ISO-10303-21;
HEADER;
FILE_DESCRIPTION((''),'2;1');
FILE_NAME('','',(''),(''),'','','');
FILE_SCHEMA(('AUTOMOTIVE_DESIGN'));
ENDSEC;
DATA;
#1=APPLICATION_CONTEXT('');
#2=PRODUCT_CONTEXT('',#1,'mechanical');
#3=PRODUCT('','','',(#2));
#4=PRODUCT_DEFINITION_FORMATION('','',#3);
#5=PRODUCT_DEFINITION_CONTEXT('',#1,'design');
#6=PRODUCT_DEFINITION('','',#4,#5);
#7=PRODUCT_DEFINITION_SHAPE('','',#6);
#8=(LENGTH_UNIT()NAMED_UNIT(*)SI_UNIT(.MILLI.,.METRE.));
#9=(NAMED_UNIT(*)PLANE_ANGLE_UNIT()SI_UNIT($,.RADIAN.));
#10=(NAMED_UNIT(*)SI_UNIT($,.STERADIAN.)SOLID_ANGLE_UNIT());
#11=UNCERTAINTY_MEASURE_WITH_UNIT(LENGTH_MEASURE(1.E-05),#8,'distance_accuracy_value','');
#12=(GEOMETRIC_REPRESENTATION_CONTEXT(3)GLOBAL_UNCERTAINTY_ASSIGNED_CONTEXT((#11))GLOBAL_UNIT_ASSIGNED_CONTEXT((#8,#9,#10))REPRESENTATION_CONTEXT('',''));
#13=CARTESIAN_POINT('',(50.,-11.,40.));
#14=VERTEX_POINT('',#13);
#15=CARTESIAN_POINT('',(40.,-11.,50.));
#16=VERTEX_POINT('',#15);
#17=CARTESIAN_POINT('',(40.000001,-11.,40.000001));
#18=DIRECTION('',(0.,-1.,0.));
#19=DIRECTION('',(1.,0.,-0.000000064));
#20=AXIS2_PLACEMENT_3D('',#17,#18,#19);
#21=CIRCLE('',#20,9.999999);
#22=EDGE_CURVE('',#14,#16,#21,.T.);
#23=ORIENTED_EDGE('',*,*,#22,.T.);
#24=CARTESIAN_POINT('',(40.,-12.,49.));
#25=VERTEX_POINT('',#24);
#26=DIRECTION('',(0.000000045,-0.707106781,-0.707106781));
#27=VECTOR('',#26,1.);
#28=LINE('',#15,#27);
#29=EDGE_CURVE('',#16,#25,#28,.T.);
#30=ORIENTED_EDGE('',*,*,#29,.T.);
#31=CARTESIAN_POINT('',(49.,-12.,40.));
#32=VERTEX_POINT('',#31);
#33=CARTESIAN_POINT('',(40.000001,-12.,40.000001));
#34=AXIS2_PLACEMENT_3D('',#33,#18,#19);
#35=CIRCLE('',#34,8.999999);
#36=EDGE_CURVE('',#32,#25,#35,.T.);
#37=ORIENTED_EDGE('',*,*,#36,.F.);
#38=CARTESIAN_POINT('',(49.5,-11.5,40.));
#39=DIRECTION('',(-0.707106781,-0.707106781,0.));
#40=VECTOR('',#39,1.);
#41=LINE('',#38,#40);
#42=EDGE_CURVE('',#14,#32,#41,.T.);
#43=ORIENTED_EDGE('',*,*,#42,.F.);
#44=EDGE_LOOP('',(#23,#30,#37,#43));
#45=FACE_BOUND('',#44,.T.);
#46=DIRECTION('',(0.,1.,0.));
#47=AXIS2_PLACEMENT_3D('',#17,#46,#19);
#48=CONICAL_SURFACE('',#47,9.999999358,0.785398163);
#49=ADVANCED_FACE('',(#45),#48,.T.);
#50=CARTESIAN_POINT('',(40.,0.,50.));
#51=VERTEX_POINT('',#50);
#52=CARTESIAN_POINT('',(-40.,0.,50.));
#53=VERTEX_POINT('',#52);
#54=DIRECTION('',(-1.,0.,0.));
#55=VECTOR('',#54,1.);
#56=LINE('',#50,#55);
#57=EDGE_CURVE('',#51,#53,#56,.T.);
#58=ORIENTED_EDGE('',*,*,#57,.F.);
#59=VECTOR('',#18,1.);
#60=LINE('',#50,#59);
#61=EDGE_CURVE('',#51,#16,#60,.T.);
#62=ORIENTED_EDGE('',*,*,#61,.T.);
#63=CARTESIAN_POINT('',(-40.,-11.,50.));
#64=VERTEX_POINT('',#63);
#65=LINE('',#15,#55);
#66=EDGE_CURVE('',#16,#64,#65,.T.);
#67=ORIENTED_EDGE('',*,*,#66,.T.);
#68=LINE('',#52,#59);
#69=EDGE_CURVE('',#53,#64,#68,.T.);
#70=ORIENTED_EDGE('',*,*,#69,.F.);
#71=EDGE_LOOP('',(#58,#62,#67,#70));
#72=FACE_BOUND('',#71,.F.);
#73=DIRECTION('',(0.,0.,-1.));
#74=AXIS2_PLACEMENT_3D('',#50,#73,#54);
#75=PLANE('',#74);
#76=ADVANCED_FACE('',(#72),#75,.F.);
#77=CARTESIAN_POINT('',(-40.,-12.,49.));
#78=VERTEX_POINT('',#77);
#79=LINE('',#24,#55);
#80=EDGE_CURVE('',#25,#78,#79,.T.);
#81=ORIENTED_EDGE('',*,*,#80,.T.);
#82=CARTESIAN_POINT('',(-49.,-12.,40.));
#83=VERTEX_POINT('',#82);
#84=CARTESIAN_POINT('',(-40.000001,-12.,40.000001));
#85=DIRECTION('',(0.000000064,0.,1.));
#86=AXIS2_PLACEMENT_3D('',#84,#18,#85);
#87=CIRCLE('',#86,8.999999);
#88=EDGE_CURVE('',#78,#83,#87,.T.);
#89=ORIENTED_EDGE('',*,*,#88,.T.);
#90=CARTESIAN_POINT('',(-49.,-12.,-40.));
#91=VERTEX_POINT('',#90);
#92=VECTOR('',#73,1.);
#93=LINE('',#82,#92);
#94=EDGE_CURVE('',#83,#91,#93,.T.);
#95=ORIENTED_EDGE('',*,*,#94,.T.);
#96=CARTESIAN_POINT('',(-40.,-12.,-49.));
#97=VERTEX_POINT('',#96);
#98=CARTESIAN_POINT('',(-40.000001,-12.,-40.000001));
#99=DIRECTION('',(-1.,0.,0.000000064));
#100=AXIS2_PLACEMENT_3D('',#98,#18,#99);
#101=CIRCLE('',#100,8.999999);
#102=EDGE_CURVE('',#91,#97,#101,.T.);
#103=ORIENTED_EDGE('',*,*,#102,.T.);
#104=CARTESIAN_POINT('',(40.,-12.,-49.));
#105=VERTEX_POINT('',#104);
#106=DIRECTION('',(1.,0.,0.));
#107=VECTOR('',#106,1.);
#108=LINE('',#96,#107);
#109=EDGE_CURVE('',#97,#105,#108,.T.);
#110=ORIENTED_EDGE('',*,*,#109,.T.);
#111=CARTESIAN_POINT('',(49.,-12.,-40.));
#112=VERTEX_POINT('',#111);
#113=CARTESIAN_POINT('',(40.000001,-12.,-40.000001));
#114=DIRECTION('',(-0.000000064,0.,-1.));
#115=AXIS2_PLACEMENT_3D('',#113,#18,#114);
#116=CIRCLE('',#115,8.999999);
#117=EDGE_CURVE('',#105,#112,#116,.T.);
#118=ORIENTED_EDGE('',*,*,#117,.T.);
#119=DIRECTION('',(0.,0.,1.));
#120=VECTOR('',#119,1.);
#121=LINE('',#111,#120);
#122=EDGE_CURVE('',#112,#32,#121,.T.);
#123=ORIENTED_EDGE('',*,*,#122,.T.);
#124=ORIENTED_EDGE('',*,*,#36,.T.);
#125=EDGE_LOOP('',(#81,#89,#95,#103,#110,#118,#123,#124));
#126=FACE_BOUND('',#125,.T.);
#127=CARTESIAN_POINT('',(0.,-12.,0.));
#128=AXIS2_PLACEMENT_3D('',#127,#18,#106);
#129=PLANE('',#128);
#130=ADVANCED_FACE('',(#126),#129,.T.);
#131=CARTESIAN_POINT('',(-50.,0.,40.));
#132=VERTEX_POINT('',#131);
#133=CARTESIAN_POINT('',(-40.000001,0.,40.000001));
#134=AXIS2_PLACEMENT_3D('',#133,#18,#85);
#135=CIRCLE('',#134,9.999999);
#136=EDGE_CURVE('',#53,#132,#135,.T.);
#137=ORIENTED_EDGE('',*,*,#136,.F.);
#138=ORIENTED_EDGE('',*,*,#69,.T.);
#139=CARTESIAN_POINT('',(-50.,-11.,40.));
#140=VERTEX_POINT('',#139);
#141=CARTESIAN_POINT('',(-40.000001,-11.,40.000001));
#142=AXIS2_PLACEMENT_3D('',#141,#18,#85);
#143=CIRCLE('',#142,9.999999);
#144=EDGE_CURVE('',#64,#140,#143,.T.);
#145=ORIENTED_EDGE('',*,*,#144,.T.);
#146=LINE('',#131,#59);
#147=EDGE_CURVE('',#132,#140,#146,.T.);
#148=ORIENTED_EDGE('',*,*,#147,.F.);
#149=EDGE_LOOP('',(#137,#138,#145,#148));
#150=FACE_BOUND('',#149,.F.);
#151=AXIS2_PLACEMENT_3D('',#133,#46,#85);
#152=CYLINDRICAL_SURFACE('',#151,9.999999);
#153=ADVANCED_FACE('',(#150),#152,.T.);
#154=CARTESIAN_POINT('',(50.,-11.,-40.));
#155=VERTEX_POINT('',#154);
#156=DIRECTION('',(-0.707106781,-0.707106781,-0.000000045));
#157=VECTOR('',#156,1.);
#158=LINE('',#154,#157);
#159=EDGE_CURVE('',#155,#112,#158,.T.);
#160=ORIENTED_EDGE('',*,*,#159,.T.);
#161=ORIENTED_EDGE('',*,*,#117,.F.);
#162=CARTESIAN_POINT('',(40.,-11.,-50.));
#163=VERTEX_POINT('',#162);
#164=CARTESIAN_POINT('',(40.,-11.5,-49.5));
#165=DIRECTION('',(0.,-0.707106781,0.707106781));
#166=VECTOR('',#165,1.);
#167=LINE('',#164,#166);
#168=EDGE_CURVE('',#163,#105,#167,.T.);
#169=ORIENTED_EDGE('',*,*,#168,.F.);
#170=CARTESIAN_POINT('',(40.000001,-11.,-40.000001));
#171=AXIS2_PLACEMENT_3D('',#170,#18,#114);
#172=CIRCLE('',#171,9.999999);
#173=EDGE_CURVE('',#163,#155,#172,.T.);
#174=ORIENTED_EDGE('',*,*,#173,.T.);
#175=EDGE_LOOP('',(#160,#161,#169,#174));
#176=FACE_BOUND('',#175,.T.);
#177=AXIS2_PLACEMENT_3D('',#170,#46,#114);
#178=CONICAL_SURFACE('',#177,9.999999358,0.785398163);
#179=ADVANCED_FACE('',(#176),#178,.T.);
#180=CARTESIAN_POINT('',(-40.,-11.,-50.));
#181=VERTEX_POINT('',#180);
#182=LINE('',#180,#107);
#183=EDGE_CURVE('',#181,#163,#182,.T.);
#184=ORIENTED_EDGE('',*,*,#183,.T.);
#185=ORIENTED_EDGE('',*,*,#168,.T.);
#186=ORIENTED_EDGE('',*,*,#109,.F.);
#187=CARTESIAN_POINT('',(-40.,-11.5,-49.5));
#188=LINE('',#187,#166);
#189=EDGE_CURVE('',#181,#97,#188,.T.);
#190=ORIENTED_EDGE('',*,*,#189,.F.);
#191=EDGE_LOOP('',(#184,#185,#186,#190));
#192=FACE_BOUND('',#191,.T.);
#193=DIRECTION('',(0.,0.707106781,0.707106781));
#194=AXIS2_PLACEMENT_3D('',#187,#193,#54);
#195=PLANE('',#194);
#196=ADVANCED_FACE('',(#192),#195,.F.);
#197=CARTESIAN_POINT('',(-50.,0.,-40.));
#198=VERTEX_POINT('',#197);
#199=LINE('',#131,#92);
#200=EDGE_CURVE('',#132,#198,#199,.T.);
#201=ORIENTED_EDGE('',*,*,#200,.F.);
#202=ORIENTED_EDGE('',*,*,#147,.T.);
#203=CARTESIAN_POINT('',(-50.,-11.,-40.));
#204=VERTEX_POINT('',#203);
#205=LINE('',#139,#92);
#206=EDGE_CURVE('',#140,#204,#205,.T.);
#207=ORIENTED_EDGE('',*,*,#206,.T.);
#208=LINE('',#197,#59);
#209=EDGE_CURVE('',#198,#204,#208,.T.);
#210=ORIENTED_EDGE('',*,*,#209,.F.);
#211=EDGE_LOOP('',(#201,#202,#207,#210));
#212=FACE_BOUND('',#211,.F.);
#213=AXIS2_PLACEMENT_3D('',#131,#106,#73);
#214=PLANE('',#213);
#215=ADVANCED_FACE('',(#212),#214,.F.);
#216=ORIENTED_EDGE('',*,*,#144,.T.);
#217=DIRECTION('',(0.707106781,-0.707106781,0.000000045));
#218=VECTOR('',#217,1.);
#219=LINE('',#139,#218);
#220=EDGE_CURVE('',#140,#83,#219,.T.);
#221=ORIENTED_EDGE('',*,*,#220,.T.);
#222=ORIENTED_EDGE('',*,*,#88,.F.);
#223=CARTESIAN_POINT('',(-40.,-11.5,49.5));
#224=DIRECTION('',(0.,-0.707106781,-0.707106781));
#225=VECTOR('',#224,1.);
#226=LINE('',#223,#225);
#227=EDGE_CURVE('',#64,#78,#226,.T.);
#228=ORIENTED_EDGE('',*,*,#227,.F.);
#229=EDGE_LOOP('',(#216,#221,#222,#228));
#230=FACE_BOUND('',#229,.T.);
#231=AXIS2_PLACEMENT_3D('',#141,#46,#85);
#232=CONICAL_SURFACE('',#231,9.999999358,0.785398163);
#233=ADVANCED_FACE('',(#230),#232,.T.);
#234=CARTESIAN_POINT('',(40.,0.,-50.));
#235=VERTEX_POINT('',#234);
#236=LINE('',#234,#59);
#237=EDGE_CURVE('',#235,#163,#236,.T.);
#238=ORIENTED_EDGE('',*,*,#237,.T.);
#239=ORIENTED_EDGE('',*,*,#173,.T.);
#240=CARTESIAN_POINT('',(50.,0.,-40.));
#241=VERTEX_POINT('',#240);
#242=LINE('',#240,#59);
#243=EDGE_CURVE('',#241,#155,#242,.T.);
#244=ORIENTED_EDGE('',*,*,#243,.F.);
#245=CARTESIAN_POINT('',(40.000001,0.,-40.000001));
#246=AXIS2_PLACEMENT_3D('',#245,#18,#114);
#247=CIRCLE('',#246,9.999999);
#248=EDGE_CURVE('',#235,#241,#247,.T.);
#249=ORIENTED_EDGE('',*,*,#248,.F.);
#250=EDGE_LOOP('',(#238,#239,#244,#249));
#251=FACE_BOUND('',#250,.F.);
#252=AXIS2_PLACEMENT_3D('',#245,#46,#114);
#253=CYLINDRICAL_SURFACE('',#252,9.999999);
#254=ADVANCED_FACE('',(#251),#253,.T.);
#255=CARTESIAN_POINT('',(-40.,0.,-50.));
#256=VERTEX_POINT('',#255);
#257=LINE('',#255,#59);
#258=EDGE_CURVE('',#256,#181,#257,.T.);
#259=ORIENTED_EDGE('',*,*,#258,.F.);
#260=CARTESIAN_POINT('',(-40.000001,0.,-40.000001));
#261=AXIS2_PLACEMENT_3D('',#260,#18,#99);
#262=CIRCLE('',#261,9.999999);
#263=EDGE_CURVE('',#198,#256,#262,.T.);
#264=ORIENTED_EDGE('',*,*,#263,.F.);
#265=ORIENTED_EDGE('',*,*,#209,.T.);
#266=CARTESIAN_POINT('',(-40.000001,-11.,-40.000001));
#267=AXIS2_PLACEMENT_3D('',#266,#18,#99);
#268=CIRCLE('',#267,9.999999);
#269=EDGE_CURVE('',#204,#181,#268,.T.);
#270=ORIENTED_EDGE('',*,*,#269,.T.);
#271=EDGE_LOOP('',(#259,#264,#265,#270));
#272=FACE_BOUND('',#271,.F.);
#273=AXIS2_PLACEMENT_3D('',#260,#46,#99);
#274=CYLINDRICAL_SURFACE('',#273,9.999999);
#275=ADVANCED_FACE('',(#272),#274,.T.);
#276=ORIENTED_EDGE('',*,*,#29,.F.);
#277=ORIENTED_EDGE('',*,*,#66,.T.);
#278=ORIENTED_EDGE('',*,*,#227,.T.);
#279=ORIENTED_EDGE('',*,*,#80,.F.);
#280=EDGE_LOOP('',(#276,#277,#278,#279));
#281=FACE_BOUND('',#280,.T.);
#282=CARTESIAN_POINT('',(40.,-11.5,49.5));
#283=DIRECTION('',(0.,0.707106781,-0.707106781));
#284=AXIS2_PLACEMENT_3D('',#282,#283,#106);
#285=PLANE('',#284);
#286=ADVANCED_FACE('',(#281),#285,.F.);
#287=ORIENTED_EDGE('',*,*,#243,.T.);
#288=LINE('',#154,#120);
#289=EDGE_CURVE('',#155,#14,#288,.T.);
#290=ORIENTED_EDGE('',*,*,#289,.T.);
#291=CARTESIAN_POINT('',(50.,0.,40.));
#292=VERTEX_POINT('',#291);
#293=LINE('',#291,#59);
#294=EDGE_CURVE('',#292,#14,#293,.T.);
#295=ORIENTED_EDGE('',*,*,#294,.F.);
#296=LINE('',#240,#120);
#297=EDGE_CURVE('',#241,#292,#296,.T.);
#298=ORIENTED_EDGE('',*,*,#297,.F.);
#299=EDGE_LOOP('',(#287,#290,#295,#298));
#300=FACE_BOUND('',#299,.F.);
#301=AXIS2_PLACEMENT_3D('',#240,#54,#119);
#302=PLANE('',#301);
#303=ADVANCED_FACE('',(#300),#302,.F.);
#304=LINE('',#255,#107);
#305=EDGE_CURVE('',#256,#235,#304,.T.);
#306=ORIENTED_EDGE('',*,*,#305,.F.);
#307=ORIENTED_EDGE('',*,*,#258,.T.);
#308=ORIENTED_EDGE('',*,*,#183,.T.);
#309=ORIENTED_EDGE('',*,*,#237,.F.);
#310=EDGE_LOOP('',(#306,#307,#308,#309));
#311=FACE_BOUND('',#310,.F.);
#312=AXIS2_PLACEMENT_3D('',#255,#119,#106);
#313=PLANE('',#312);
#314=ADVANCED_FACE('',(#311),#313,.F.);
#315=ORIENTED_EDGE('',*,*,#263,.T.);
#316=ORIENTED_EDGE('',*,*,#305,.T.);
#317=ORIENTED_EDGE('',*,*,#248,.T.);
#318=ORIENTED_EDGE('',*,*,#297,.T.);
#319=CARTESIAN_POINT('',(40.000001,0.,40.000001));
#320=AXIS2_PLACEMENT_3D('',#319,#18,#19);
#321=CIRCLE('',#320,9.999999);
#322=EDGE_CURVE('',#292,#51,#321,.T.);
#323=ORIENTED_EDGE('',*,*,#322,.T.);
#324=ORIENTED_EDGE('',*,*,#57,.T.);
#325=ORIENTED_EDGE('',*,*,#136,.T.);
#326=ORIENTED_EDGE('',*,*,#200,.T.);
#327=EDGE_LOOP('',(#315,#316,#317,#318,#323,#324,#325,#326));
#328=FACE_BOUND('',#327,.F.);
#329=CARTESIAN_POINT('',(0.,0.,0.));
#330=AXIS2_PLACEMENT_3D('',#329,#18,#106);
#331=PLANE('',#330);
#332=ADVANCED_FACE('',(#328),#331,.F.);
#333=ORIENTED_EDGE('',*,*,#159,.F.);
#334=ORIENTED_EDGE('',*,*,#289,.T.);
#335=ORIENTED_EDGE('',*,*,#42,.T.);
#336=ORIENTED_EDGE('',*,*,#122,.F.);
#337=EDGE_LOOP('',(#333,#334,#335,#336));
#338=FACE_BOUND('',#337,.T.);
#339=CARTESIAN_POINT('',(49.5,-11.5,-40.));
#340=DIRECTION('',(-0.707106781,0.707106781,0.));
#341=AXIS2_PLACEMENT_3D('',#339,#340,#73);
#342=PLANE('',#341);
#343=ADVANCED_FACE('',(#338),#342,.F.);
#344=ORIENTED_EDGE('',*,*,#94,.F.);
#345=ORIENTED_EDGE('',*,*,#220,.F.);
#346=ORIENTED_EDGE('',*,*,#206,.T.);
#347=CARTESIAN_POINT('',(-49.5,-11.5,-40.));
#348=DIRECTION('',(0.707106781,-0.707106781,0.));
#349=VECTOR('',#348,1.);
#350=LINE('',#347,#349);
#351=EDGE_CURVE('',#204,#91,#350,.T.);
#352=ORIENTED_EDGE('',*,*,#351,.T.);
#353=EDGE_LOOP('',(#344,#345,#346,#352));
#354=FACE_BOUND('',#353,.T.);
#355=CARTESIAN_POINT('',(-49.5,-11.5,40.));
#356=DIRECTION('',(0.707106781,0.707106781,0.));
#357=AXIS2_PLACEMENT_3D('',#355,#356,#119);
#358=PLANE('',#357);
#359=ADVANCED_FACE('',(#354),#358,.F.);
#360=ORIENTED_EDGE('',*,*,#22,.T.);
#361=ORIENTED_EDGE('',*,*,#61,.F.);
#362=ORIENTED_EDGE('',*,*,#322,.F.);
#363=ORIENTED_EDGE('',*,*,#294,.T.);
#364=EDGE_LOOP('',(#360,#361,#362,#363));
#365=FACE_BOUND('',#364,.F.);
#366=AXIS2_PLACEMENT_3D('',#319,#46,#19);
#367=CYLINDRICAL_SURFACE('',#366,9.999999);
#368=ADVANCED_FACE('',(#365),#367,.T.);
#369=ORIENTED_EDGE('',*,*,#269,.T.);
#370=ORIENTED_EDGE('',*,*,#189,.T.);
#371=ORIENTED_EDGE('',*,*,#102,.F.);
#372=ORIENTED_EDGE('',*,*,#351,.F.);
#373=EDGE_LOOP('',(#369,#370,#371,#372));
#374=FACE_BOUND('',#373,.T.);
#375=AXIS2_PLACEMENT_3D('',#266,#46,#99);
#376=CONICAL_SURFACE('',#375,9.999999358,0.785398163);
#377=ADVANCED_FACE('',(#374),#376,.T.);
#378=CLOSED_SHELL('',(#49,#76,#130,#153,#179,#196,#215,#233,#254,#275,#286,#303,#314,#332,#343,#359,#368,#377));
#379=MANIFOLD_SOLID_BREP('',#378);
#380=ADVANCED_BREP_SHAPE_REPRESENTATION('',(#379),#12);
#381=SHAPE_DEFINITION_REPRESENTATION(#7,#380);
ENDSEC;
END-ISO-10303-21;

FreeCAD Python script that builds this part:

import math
import FreeCAD as App
import Part
import Sketcher
Q = App.Units.Quantity


def edges_at(feature, points):
    """Names of the edges that pass closest to the given points."""
    edges = feature.Shape.Edges
    near = lambda p: min(range(len(edges)), key=lambda i: edges[i].distToShape(Part.Vertex(*p))[0])
    return sorted({f"Edge{near(p) + 1}" for p in points})

doc = App.newDocument("Part")
body = doc.addObject("PartDesign::Body", "Body")

sketch1 = doc.addObject("Sketcher::SketchObject", "Sketch")
body.addObject(sketch1)
sketch1.AttachmentSupport = (doc.XZ_Plane, [""])
sketch1.MapMode = "FlatFace"
sketch1.addGeometry(Part.LineSegment(App.Vector(-40, -50, 0), App.Vector(40, -50, 0)), False)
sketch1.addGeometry(Part.ArcOfCircle(Part.Circle(App.Vector(40, -40, 0), App.Vector(0, 0, 1), 10), math.radians(-90), math.radians(0)), False)
sketch1.addGeometry(Part.LineSegment(App.Vector(50, -40, 0), App.Vector(50, 40, 0)), False)
sketch1.addGeometry(Part.ArcOfCircle(Part.Circle(App.Vector(40, 40, 0), App.Vector(0, 0, 1), 10), math.radians(0), math.radians(90)), False)
sketch1.addGeometry(Part.LineSegment(App.Vector(40, 50, 0), App.Vector(-40, 50, 0)), False)
sketch1.addGeometry(Part.ArcOfCircle(Part.Circle(App.Vector(-40, 40, 0), App.Vector(0, 0, 1), 10), math.radians(90), math.radians(180)), False)
sketch1.addGeometry(Part.LineSegment(App.Vector(-50, 40, 0), App.Vector(-50, -40, 0)), False)
sketch1.addGeometry(Part.ArcOfCircle(Part.Circle(App.Vector(-40, -40, 0), App.Vector(0, 0, 1), 10), math.radians(180), math.radians(270)), False)
sketch1.addConstraint(Sketcher.Constraint("Tangent", 0, 2, 1, 1))
sketch1.addConstraint(Sketcher.Constraint("Tangent", 1, 2, 2, 1))
sketch1.addConstraint(Sketcher.Constraint("Tangent", 2, 2, 3, 1))
sketch1.addConstraint(Sketcher.Constraint("Tangent", 3, 2, 4, 1))
sketch1.addConstraint(Sketcher.Constraint("Tangent", 4, 2, 5, 1))
sketch1.addConstraint(Sketcher.Constraint("Tangent", 5, 2, 6, 1))
sketch1.addConstraint(Sketcher.Constraint("Tangent", 6, 2, 7, 1))
sketch1.addConstraint(Sketcher.Constraint("Tangent", 7, 2, 0, 1))
sketch1.addConstraint(Sketcher.Constraint("Horizontal", 0))
sketch1.addConstraint(Sketcher.Constraint("Vertical", 2))
sketch1.addConstraint(Sketcher.Constraint("Horizontal", 4))
sketch1.addConstraint(Sketcher.Constraint("Vertical", 6))
sketch1.addConstraint(Sketcher.Constraint("Equal", 1, 3))
sketch1.addConstraint(Sketcher.Constraint("Equal", 3, 5))
sketch1.addConstraint(Sketcher.Constraint("Equal", 5, 7))
sketch1.addConstraint(Sketcher.Constraint("Symmetric", 1, 3, 5, 3, -1, 1))
sketch1.addConstraint(Sketcher.Constraint("Equal", 4, 2))
sketch1.addConstraint(Sketcher.Constraint("Radius", 1, Q("9.999999 mm")))
sketch1.addConstraint(Sketcher.Constraint("DistanceX", 0, 1, 0, 2, Q("80 mm")))
pad1 = doc.addObject("PartDesign::Pad", "Pad")
body.addObject(pad1)
pad1.Profile = sketch1
pad1.Length = 12
doc.recompute()

chamfer = doc.addObject("PartDesign::Chamfer", "Chamfer")
body.addObject(chamfer)
chamfer.Base = (pad1, edges_at(pad1, [(0, -12, -50), (-47.071, -12, -47.071)]))
chamfer.ChamferType = "Two distances"
chamfer.Size = 1
chamfer.Size2 = 1

doc.recompute()
